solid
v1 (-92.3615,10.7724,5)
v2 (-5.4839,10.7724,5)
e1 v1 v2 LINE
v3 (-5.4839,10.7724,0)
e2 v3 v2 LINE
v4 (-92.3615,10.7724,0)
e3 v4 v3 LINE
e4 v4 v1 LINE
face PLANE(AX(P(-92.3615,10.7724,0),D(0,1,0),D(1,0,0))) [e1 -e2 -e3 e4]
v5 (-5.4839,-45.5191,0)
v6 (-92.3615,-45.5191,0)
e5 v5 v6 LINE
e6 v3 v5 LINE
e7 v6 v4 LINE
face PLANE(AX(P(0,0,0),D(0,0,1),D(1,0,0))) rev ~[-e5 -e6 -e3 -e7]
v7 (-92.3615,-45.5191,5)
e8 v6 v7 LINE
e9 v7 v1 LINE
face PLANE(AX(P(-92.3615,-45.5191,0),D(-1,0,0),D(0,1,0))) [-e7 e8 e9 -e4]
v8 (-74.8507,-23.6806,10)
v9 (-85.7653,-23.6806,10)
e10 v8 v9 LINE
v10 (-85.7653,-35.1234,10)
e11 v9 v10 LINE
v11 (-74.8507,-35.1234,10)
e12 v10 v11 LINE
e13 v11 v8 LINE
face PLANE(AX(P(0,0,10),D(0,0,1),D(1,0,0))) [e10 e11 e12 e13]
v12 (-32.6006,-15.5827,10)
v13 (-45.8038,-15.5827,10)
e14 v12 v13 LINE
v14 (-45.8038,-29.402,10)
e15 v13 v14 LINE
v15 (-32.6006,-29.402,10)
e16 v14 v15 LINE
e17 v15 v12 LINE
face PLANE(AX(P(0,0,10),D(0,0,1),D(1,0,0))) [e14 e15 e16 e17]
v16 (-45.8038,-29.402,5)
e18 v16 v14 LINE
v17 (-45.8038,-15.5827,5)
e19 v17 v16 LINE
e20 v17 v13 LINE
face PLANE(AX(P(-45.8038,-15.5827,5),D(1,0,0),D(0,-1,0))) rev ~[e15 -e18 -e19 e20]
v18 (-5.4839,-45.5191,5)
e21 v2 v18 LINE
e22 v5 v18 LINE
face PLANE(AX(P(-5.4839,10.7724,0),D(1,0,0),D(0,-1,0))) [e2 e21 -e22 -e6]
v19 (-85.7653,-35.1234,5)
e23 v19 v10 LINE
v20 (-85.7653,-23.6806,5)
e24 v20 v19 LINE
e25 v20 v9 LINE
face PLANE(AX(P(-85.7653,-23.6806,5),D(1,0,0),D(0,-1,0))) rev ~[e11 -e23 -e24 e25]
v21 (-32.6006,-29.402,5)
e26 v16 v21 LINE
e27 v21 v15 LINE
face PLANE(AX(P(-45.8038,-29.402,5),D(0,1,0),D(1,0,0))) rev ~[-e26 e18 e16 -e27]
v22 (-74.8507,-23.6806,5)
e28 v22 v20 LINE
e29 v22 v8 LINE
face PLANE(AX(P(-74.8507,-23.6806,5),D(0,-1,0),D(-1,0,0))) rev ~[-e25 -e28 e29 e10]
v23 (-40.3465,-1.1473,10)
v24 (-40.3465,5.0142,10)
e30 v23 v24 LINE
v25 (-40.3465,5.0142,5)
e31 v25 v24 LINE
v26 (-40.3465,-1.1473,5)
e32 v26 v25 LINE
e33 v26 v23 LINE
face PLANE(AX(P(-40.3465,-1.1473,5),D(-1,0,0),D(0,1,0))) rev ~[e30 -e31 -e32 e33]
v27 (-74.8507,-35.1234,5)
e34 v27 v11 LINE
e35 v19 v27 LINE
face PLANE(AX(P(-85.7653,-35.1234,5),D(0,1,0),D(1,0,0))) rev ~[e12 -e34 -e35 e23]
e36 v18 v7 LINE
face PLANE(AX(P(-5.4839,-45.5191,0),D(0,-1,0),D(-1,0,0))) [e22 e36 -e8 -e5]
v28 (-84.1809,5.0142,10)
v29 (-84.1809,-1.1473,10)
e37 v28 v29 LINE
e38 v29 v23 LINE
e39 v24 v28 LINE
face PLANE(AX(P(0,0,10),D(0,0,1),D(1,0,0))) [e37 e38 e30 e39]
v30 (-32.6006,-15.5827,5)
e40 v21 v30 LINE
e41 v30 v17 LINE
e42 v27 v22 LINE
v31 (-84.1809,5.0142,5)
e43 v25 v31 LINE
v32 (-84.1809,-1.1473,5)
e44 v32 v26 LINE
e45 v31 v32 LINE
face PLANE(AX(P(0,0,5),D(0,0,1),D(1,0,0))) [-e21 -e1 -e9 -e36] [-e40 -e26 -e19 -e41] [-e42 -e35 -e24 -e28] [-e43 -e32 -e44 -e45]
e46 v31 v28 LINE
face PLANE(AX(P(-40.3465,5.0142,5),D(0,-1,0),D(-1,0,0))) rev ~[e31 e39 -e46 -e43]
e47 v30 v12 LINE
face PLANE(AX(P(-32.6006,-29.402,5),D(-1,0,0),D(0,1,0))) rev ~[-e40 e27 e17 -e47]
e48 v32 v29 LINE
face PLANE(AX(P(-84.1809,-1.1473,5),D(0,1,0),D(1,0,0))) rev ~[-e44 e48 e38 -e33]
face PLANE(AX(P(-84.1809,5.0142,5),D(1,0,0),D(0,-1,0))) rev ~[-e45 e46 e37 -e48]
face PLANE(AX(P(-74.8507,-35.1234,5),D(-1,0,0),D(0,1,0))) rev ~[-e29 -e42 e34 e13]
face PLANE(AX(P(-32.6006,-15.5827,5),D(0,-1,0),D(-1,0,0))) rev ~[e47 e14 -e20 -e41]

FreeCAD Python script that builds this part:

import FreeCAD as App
import Part
import Sketcher

V = App.Vector


def add_polygon(sketch, points):
    """Adds a closed chain of lines whose ends are joined by coincident constraints."""
    first, n = sketch.GeometryCount, len(points)
    for a, b in zip(points, points[1:] + points[:1]):
        sketch.addGeometry(Part.LineSegment(App.Vector(*a, 0), App.Vector(*b, 0)), False)
    for i in range(n):
        sketch.addConstraint(Sketcher.Constraint("Coincident", first + i, 2, first + (i + 1) % n, 1))

doc = App.newDocument("Part")
body = doc.addObject("PartDesign::Body", "Body")

# Sketch on XY plane
sketch1 = body.newObject("Sketcher::SketchObject", "Sketch")
sketch1.AttachmentSupport = (doc.getObject("XY_Plane"), [""])
sketch1.MapMode = "FlatFace"
add_polygon(sketch1, [(-92, -46), (-5, -46), (-5, 11), (-92, 11)])  # lines 0-3
sketch1.addConstraint([
    Sketcher.Constraint("Horizontal", 0),
    Sketcher.Constraint("Vertical", 1),
    Sketcher.Constraint("Horizontal", 2),
    Sketcher.Constraint("Vertical", 3),
    Sketcher.Constraint("DistanceX", 0, 1, 0, 2, 86.8776),
    Sketcher.Constraint("DistanceY", 1, 1, 1, 2, 56.2915),
    Sketcher.Constraint("DistanceX", 0, 2, -1, 1, 5.484),
    Sketcher.Constraint("DistanceY", 0, 2, -1, 1, 45.519),
])
pad1 = body.newObject("PartDesign::Pad", "Pad")
pad1.Profile = sketch1
pad1.Length = 5

# Sketch on XY plane
sketch2 = body.newObject("Sketcher::SketchObject", "Sketch001")
sketch2.AttachmentSupport = (doc.getObject("XY_Plane"), [""])
sketch2.MapMode = "FlatFace"
sketch2.AttachmentOffset = App.Placement(V(0, 0, 5), App.Rotation())
add_polygon(sketch2, [(-40, -1), (-40, 5), (-84, 5), (-84, -1)])  # lines 0-3
add_polygon(sketch2, [(-75, -35), (-75, -24), (-86, -24), (-86, -35)])  # lines 4-7
add_polygon(sketch2, [(-33, -29), (-33, -16), (-46, -16), (-46, -29)])  # lines 8-11
sketch2.addConstraint([
    Sketcher.Constraint("Vertical", 0),
    Sketcher.Constraint("Horizontal", 1),
    Sketcher.Constraint("Vertical", 2),
    Sketcher.Constraint("Horizontal", 3),
    Sketcher.Constraint("Vertical", 4),
    Sketcher.Constraint("Horizontal", 5),
    Sketcher.Constraint("Vertical", 6),
    Sketcher.Constraint("Horizontal", 7),
    Sketcher.Constraint("Vertical", 8),
    Sketcher.Constraint("Horizontal", 9),
    Sketcher.Constraint("Vertical", 10),
    Sketcher.Constraint("Horizontal", 11),
    Sketcher.Constraint("DistanceX", 4, 2, 8, 2, 42.25),
    Sketcher.Constraint("DistanceX", 1, 2, 1, 1, 43.8344),
    Sketcher.Constraint("DistanceX", 5, 2, 5, 1, 10.9146),
    Sketcher.Constraint("DistanceX", 9, 2, 9, 1, 13.2032),
    Sketcher.Constraint("DistanceY", 0, 1, 0, 2, 6.1615),
    Sketcher.Constraint("DistanceY", 4, 1, 4, 2, 11.4428),
    Sketcher.Constraint("DistanceY", 8, 1, 8, 2, 13.8193),
    Sketcher.Constraint("DistanceX", 1, 2, -1, 1, 84.181),
    Sketcher.Constraint("DistanceY", 10, 2, -1, 1, 29.402),
    Sketcher.Constraint("DistanceY", 6, 2, 2, 2, 33.976),
    Sketcher.Constraint("DistanceX", 3, 2, 8, 2, 7.746),
    Sketcher.Constraint("DistanceY", 8, 2, 0, 2, 20.597),
])
pad2 = body.newObject("PartDesign::Pad", "Pad001")
pad2.Profile = sketch2
pad2.Length = 5

doc.recompute()
